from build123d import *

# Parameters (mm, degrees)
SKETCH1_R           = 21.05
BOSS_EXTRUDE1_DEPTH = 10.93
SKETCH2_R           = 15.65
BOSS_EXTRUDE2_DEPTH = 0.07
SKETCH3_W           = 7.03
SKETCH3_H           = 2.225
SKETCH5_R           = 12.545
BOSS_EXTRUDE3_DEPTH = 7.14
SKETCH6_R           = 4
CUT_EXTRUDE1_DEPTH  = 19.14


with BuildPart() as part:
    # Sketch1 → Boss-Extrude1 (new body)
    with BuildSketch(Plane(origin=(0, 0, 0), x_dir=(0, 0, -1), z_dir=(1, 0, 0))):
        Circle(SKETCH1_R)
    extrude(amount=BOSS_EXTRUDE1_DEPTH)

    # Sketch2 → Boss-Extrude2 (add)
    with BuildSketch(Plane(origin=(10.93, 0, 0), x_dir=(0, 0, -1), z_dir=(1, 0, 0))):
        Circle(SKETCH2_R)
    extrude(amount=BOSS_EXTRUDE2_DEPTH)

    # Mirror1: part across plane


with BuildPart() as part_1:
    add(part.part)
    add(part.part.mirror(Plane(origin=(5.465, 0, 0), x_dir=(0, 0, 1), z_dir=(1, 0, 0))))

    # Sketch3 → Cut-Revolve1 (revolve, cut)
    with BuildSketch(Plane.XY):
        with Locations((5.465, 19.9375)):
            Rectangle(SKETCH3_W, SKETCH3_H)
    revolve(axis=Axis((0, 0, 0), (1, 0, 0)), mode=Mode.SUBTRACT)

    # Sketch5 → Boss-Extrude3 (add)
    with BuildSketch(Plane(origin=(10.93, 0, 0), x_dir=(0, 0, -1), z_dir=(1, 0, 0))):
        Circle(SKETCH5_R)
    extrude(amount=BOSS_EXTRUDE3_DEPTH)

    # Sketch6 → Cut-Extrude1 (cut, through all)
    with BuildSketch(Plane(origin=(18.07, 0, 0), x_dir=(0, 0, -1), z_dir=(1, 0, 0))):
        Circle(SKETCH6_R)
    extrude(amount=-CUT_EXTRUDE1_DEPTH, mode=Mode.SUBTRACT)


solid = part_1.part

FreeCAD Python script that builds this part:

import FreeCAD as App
import Part
import Sketcher

V = App.Vector
Q = App.Units.Quantity

doc = App.newDocument("Part")
body = doc.addObject("PartDesign::Body", "Body")

sketch1 = body.newObject("Sketcher::SketchObject", "Sketch")
sketch1.AttachmentSupport = (doc.getObject("YZ_Plane"), [""])
sketch1.MapMode = "FlatFace"
sketch1.addGeometry(Part.Circle(V(0, 0, 0), V(0, 0, 1), 21), False)
sketch1.addConstraint([
    Sketcher.Constraint("Coincident", 0, 3, -1, 1),
    Sketcher.Constraint("Diameter", 0, Q("42.1 mm")),
])
pad1 = body.newObject("PartDesign::Pad", "Pad")
pad1.Profile = sketch1
pad1.Length = 10.93

sketch2 = body.newObject("Sketcher::SketchObject", "Sketch001")
sketch2.AttachmentSupport = (doc.getObject("YZ_Plane"), [""])
sketch2.MapMode = "FlatFace"
sketch2.AttachmentOffset = App.Placement(V(0, 0, 10.93), App.Rotation())
sketch2.addGeometry(Part.Circle(V(0, 0, 0), V(0, 0, 1), 16), False)
sketch2.addConstraint([
    Sketcher.Constraint("Coincident", 0, 3, -1, 1),
    Sketcher.Constraint("Diameter", 0, Q("31.3 mm")),
])
pad2 = body.newObject("PartDesign::Pad", "Pad001")
pad2.Profile = sketch2
pad2.Length = 0.07
body2 = doc.addObject("PartDesign::Body", "Body001")
doc.recompute()

body2.BaseFeature = body
doc.recompute()

mirroring = doc.addObject("Part::Mirroring", "Mirroring")
mirroring.Source = body
mirroring.Base = V(5.465, 0, 0)
mirroring.Normal = V(1, 0, 0)
body3 = doc.addObject("PartDesign::Body", "Body002")
body3.BaseFeature = mirroring
boolean = body2.newObject("PartDesign::Boolean", "Boolean")
boolean.Type = "Fuse"
boolean.addObjects([body3])
doc.recompute()

sketch3 = body2.newObject("Sketcher::SketchObject", "Sketch002")
sketch3.AttachmentSupport = (doc.getObject("XY_Plane001"), [""])
sketch3.MapMode = "FlatFace"
sketch3.addGeometry([
    Part.LineSegment(V(1.9, 21.1, 0), V(1.9, 18.8, 0)),
    Part.LineSegment(V(1.9, 18.8, 0), V(9, 18.8, 0)),
    Part.LineSegment(V(9, 18.8, 0), V(9, 21.1, 0)),
    Part.LineSegment(V(9, 21.1, 0), V(1.9, 21.1, 0)),
], False)
sketch3.addConstraint([
    Sketcher.Constraint("Coincident", 0, 2, 1, 1),
    Sketcher.Constraint("Coincident", 1, 2, 2, 1),
    Sketcher.Constraint("Coincident", 2, 2, 3, 1),
    Sketcher.Constraint("Coincident", 3, 2, 0, 1),
    Sketcher.Constraint("Vertical", 0),
    Sketcher.Constraint("Horizontal", 1),
    Sketcher.Constraint("Vertical", 2),
    Sketcher.Constraint("Horizontal", 3),
    Sketcher.Constraint("DistanceX", 1, 1, 1, 2, Q("7.03 mm")),
    Sketcher.Constraint("DistanceY", 0, 2, 0, 1, Q("2.225 mm")),
    Sketcher.Constraint("DistanceX", -1, 1, 0, 2, Q("1.95 mm")),
    Sketcher.Constraint("DistanceY", -1, 1, 2, 2, Q("21.05 mm")),
])
groove = body2.newObject("PartDesign::Groove", "Groove")
groove.Profile = sketch3
groove.ReferenceAxis = (sketch3, ["H_Axis"])
groove.Angle = 360

sketch4 = body2.newObject("Sketcher::SketchObject", "Sketch003")
sketch4.AttachmentSupport = (doc.getObject("YZ_Plane001"), [""])
sketch4.MapMode = "FlatFace"
sketch4.AttachmentOffset = App.Placement(V(0, 0, 10.93), App.Rotation())
sketch4.addGeometry(Part.Circle(V(0, 0, 0), V(0, 0, 1), 13), False)
sketch4.addConstraint([
    Sketcher.Constraint("Coincident", 0, 3, -1, 1),
    Sketcher.Constraint("Diameter", 0, Q("25.09 mm")),
])
pad3 = body2.newObject("PartDesign::Pad", "Pad002")
pad3.Profile = sketch4
pad3.Length = 7.14

sketch5 = body2.newObject("Sketcher::SketchObject", "Sketch004")
sketch5.AttachmentSupport = (doc.getObject("YZ_Plane001"), [""])
sketch5.MapMode = "FlatFace"
sketch5.AttachmentOffset = App.Placement(V(0, 0, 18.07), App.Rotation())
sketch5.addGeometry(Part.Circle(V(0, 0, 0), V(0, 0, 1), 4), False)
sketch5.addConstraint([
    Sketcher.Constraint("Coincident", 0, 3, -1, 1),
    Sketcher.Constraint("Diameter", 0, Q("8 mm")),
])
pocket1 = body2.newObject("PartDesign::Pocket", "Pocket")
pocket1.Profile = sketch5
pocket1.Type = "ThroughAll"
mirroring.Visibility = False

doc.recompute()
